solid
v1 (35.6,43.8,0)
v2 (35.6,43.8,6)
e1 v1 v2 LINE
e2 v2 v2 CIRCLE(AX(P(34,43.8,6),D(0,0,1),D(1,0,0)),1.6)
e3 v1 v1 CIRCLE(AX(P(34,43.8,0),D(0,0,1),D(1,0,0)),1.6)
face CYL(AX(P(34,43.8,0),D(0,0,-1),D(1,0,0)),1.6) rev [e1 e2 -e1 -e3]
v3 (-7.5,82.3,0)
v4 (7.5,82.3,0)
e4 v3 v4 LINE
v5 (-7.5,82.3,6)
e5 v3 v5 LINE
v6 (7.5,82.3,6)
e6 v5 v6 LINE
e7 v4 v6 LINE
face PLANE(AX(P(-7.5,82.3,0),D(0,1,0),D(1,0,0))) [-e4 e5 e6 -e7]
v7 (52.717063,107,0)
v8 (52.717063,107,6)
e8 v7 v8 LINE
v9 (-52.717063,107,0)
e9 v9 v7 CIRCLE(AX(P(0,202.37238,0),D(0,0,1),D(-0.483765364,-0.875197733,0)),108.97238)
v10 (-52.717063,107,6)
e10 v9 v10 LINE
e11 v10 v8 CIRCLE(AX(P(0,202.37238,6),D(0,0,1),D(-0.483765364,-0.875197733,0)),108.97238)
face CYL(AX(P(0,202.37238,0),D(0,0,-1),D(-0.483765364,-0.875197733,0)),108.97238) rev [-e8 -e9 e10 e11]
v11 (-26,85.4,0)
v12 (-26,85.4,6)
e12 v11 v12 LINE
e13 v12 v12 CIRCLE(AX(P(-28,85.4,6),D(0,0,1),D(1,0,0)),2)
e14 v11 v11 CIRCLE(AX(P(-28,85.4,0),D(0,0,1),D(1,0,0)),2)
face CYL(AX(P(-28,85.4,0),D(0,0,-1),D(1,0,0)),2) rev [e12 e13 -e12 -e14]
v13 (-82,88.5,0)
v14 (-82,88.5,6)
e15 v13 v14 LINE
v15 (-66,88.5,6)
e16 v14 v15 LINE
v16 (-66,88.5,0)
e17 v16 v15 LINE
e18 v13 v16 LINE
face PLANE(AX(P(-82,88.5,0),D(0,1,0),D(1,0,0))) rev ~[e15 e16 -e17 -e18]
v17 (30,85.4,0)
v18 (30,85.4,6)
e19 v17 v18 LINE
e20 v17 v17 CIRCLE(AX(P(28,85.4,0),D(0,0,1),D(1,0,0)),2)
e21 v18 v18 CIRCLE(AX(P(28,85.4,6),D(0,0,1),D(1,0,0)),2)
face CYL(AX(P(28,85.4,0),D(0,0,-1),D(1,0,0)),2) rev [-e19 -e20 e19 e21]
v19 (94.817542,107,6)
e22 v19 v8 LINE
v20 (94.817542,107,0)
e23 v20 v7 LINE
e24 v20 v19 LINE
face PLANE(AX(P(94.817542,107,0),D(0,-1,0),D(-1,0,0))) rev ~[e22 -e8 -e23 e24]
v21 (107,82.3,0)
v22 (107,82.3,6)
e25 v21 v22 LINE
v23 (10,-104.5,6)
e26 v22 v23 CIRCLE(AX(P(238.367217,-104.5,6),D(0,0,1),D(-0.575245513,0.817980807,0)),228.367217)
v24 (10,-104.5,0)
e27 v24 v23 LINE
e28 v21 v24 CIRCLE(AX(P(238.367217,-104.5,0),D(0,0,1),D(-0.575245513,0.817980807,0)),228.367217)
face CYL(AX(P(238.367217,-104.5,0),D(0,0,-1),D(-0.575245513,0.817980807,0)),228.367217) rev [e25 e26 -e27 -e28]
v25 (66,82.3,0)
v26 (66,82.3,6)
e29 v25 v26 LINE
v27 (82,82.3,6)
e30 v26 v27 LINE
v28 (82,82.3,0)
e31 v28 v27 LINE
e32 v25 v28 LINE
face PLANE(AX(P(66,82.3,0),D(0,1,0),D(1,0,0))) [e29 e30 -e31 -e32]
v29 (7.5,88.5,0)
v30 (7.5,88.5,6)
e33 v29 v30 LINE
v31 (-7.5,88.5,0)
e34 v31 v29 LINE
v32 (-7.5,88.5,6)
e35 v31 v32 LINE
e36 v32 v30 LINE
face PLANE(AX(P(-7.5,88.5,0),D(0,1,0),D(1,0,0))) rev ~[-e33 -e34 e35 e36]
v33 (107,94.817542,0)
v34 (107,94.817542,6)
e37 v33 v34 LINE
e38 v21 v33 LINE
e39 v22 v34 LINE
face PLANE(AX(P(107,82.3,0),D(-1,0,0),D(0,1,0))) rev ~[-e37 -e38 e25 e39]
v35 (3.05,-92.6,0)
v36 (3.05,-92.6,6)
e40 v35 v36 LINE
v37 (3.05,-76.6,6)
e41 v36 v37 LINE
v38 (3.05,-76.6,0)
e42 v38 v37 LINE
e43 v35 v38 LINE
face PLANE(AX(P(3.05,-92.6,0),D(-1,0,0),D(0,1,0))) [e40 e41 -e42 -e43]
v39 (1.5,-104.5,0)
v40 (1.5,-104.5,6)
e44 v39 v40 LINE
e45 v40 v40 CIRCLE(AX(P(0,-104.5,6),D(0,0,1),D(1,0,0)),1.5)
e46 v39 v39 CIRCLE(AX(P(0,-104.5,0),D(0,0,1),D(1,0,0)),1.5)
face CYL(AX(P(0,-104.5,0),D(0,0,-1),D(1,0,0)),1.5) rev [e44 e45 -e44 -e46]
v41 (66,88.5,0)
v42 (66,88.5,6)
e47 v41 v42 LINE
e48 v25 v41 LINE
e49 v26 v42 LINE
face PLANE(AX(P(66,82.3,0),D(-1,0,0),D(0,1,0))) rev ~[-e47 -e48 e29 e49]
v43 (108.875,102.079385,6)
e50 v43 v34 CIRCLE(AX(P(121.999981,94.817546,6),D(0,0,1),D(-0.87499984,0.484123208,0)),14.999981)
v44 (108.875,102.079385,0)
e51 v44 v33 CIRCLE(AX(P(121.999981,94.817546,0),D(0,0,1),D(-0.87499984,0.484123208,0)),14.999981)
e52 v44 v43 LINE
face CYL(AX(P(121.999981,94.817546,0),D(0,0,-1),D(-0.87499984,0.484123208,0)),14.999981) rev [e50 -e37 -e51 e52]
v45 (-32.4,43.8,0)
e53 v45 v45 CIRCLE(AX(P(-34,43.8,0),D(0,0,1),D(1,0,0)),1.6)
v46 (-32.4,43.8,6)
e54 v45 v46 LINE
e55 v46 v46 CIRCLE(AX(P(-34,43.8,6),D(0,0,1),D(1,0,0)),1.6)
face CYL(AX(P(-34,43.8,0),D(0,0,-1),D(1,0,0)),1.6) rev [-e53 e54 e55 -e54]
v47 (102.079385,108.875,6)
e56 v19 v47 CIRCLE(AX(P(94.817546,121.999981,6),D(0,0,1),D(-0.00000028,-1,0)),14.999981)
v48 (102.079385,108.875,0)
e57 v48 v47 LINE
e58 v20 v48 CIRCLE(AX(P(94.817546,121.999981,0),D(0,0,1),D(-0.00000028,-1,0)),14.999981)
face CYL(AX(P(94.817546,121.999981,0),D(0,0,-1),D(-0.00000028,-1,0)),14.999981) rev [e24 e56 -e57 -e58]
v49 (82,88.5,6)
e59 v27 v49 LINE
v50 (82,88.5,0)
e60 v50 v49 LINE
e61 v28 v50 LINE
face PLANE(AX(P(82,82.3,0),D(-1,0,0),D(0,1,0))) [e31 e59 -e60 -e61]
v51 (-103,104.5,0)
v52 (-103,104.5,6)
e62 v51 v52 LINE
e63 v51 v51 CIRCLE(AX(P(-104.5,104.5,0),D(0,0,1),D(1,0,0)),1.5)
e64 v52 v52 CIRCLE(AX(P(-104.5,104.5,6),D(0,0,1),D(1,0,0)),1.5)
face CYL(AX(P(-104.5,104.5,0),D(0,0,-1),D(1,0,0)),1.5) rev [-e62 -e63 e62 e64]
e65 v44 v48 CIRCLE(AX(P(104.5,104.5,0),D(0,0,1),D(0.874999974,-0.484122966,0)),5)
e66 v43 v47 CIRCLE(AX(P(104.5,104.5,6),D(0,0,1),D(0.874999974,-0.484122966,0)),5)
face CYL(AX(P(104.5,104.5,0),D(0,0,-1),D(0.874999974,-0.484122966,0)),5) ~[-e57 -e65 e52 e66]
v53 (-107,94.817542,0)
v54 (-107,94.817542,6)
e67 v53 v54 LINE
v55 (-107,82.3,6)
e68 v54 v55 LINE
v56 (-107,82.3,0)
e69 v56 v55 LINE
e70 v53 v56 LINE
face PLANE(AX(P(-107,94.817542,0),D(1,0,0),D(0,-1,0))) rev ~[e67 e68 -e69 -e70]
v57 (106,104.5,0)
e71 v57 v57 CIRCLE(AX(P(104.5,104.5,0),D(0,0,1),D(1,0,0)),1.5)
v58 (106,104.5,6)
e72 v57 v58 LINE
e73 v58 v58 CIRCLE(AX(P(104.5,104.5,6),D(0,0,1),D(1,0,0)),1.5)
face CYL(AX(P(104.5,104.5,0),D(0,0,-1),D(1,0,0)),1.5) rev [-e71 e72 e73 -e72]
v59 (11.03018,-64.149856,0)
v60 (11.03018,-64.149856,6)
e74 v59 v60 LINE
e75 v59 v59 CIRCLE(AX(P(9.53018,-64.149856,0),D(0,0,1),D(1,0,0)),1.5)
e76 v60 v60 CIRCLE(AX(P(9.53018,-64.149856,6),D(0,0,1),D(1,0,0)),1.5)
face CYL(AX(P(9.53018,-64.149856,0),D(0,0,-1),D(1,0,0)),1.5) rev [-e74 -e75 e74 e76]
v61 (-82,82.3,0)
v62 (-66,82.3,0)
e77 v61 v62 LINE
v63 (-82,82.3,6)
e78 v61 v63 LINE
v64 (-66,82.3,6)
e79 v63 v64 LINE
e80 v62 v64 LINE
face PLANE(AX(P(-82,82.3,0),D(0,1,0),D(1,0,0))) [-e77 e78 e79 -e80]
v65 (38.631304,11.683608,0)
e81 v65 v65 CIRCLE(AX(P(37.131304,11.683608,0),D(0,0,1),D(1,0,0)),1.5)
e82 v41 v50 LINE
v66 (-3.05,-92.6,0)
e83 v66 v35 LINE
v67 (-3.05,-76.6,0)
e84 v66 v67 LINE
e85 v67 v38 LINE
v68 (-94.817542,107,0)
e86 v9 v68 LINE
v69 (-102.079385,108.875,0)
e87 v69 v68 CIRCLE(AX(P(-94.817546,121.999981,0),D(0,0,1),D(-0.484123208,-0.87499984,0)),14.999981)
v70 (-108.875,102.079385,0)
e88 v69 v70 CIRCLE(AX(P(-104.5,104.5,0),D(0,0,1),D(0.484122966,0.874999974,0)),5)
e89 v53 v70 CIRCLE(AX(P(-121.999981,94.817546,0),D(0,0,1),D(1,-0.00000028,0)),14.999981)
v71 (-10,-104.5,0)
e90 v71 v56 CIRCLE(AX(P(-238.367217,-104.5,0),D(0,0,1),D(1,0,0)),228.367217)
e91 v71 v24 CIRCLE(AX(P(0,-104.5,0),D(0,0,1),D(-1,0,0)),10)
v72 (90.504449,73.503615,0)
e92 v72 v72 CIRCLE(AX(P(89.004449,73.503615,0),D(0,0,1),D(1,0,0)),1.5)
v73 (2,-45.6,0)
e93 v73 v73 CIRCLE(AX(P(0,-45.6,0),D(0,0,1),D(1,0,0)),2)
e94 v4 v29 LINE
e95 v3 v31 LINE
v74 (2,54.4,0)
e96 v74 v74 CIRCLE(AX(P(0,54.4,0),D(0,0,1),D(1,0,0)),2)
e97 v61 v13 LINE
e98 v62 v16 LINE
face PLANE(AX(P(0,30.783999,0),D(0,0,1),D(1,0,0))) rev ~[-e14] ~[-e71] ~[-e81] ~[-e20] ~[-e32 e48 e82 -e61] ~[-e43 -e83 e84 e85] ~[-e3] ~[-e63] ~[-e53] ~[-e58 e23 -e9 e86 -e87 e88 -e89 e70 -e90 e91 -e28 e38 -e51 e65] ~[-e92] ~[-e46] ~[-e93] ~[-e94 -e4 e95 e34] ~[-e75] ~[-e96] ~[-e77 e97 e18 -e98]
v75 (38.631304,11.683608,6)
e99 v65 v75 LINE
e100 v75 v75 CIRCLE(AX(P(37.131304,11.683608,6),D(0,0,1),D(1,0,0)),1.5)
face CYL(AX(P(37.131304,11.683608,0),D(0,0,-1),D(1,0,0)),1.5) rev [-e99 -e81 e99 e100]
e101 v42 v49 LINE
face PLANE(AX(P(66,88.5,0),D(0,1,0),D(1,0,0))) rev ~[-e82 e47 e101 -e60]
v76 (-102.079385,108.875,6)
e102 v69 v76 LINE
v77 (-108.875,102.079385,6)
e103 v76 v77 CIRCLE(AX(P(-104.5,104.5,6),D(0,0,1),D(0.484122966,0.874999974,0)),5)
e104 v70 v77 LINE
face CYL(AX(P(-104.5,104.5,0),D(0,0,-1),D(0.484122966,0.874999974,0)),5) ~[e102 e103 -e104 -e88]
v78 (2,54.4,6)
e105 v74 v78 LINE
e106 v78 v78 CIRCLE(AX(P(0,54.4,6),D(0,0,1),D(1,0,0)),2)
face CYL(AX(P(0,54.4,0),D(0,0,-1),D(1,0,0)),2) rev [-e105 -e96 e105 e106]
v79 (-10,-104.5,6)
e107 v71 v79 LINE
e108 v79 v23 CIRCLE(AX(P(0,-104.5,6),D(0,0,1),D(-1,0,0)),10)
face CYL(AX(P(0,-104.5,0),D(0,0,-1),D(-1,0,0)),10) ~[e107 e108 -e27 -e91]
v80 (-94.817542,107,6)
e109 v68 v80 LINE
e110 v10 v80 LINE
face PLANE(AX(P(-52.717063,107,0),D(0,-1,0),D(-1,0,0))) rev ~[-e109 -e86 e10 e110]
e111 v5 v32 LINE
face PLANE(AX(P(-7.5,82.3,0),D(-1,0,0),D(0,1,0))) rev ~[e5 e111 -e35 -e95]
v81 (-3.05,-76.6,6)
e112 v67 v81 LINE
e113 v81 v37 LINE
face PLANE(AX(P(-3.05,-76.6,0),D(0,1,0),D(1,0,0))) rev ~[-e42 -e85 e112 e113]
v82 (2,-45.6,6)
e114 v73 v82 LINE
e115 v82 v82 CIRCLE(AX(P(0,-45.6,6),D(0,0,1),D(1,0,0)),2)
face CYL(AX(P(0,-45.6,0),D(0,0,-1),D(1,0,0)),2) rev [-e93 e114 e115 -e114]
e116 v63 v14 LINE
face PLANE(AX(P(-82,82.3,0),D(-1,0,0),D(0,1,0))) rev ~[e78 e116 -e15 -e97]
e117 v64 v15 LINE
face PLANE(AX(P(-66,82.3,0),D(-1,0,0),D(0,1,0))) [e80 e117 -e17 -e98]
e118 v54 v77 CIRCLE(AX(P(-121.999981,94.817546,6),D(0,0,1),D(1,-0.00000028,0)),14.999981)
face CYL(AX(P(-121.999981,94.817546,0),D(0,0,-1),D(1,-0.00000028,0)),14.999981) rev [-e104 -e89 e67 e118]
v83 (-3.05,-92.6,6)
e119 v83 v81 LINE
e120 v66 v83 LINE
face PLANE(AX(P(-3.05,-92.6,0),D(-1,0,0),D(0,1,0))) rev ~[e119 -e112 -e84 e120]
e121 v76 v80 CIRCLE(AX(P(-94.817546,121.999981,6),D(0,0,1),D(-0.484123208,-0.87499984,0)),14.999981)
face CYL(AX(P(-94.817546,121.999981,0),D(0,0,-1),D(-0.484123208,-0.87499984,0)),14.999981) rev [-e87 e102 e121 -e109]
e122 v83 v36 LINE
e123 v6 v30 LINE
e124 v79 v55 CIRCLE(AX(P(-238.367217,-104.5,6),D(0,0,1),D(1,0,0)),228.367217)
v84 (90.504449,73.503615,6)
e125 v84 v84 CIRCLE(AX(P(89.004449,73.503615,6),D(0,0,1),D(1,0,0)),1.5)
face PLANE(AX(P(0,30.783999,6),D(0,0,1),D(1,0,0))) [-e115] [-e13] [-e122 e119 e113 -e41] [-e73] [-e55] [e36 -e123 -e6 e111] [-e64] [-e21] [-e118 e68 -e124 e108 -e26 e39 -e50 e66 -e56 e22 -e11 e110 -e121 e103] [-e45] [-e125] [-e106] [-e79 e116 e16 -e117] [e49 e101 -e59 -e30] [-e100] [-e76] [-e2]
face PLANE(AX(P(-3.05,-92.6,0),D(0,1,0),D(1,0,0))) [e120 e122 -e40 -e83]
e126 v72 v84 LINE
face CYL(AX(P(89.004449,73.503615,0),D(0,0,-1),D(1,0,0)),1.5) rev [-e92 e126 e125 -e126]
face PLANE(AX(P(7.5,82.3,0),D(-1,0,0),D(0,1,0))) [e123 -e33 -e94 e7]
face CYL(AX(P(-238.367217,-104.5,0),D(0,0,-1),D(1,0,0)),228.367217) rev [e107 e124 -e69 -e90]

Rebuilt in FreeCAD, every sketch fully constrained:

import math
import FreeCAD as App
import Part
import Sketcher

V = App.Vector


def add_polygon(sketch, points):
    """Adds a closed chain of lines whose ends are joined by coincident constraints."""
    first, n = sketch.GeometryCount, len(points)
    for a, b in zip(points, points[1:] + points[:1]):
        sketch.addGeometry(Part.LineSegment(App.Vector(*a, 0), App.Vector(*b, 0)), False)
    for i in range(n):
        sketch.addConstraint(Sketcher.Constraint("Coincident", first + i, 2, first + (i + 1) % n, 1))

doc = App.newDocument("Part")
params = doc.addObject("Spreadsheet::Sheet", "Params")
for row, (alias, value) in enumerate([
    ("sketch1_diameter", "3 mm"),
    ("sketch1_diameter2", "4 mm"),
    ("sketch1_radius", "10 mm"),
    ("sketch1_radius2", "5 mm"),
    ("sketch1_diameter3", "3.2 mm"),
    ("pad1_length", "6 mm"),
], start=1):
    params.set(f"A{row}", alias)
    params.set(f"B{row}", "=" + value)
    params.setAlias(f"B{row}", alias)

body = doc.addObject("PartDesign::Body", "Body")

# Sketch on XY plane
sketch1 = doc.addObject("Sketcher::SketchObject", "Sketch")
body.addObject(sketch1)
sketch1.AttachmentSupport = (doc.XY_Plane, [""])
sketch1.MapMode = "FlatFace"
sketch1.addGeometry(Part.ArcOfCircle(Part.Circle(V(0, -104.5, 0), V(0, 0, 1), 10), math.radians(180), math.radians(360)), False)  # 0
sketch1.addGeometry(Part.ArcOfCircle(Part.Circle(V(238.4, -104.5, 0), V(0, 0, 1), 228.4), math.radians(125), math.radians(180)), False)  # 1
sketch1.addGeometry(Part.LineSegment(V(107, 82.3, 0), V(107, 94.8, 0)), False)  # 2
sketch1.addGeometry(Part.ArcOfCircle(Part.Circle(V(122, 94.8, 0), V(0, 0, 1), 15), math.radians(151), math.radians(180)), False)  # 3
sketch1.addGeometry(Part.ArcOfCircle(Part.Circle(V(104.5, 104.5, 0), V(0, 0, 1), 5), math.radians(-29), math.radians(119)), False)  # 4
sketch1.addGeometry(Part.ArcOfCircle(Part.Circle(V(94.8, 122, 0), V(0, 0, 1), 15), math.radians(-90), math.radians(-61)), False)  # 5
sketch1.addGeometry(Part.LineSegment(V(94.8, 107, 0), V(52.7, 107, 0)), False)  # 6
sketch1.addGeometry(Part.ArcOfCircle(Part.Circle(V(0, 202.4, 0), V(0, 0, 1), 109), math.radians(-119), math.radians(-61)), False)  # 7
sketch1.addGeometry(Part.LineSegment(V(-52.7, 107, 0), V(-94.8, 107, 0)), False)  # 8
sketch1.addGeometry(Part.ArcOfCircle(Part.Circle(V(-94.8, 122, 0), V(0, 0, 1), 15), math.radians(-119), math.radians(-90)), False)  # 9
sketch1.addGeometry(Part.ArcOfCircle(Part.Circle(V(-104.5, 104.5, 0), V(0, 0, 1), 5), math.radians(61), math.radians(209)), False)  # 10
sketch1.addGeometry(Part.ArcOfCircle(Part.Circle(V(-122, 94.8, 0), V(0, 0, 1), 15), math.radians(0), math.radians(29)), False)  # 11
sketch1.addGeometry(Part.LineSegment(V(-107, 94.8, 0), V(-107, 82.3, 0)), False)  # 12
sketch1.addGeometry(Part.ArcOfCircle(Part.Circle(V(-238.4, -104.5, 0), V(0, 0, 1), 228.4), math.radians(0), math.radians(55)), False)  # 13
sketch1.addGeometry(Part.Circle(V(0, -104.5, 0), V(0, 0, 1), 1.5), False)  # 14
add_polygon(sketch1, [(3, -92.6), (-3, -92.6), (-3, -76.6), (3, -76.6)])  # lines 15-18
sketch1.addGeometry(Part.Circle(V(9.5, -64.1, 0), V(0, 0, 1), 1.5), False)  # 19
sketch1.addGeometry(Part.Circle(V(0, -45.6, 0), V(0, 0, 1), 2), False)  # 20
sketch1.addGeometry(Part.Circle(V(-34, 43.8, 0), V(0, 0, 1), 1.6), False)  # 21
sketch1.addGeometry(Part.Circle(V(-104.5, 104.5, 0), V(0, 0, 1), 1.5), False)  # 22
add_polygon(sketch1, [(-66, 82.3), (-82, 82.3), (-82, 88.5), (-66, 88.5)])  # lines 23-26
sketch1.addGeometry(Part.Circle(V(-28, 85.4, 0), V(0, 0, 1), 2), False)  # 27
sketch1.addGeometry(Part.Circle(V(37.1, 11.7, 0), V(0, 0, 1), 1.5), False)  # 28
sketch1.addGeometry(Part.Circle(V(34, 43.8, 0), V(0, 0, 1), 1.6), False)  # 29
sketch1.addGeometry(Part.Circle(V(0, 54.4, 0), V(0, 0, 1), 2), False)  # 30
add_polygon(sketch1, [(7.5, 82.3), (-7.5, 82.3), (-7.5, 88.5), (7.5, 88.5)])  # lines 31-34
sketch1.addGeometry(Part.Circle(V(28, 85.4, 0), V(0, 0, 1), 2), False)  # 35
sketch1.addGeometry(Part.Circle(V(89, 73.5, 0), V(0, 0, 1), 1.5), False)  # 36
add_polygon(sketch1, [(82, 82.3), (66, 82.3), (66, 88.5), (82, 88.5)])  # lines 37-40
sketch1.addGeometry(Part.Circle(V(104.5, 104.5, 0), V(0, 0, 1), 1.5), False)  # 41
sketch1.addConstraint([
    Sketcher.Constraint("Tangent", 0, 2, 1, 2),
    Sketcher.Constraint("Coincident", 1, 1, 2, 1),
    Sketcher.Constraint("Tangent", 2, 2, 3, 2),
    Sketcher.Constraint("Tangent", 3, 1, 4, 1),
    Sketcher.Constraint("Tangent", 4, 2, 5, 2),
    Sketcher.Constraint("Tangent", 5, 1, 6, 1),
    Sketcher.Constraint("Coincident", 6, 2, 7, 2),
    Sketcher.Constraint("Coincident", 7, 1, 8, 1),
    Sketcher.Constraint("Tangent", 8, 2, 9, 2),
    Sketcher.Constraint("Tangent", 9, 1, 10, 1),
    Sketcher.Constraint("Tangent", 10, 2, 11, 2),
    Sketcher.Constraint("Tangent", 11, 1, 12, 1),
    Sketcher.Constraint("Coincident", 12, 2, 13, 2),
    Sketcher.Constraint("Tangent", 13, 1, 0, 1),
    Sketcher.Constraint("Vertical", 2),
    Sketcher.Constraint("Horizontal", 6),
    Sketcher.Constraint("Horizontal", 8),
    Sketcher.Constraint("Vertical", 12),
    Sketcher.Constraint("Horizontal", 15),
    Sketcher.Constraint("Vertical", 16),
    Sketcher.Constraint("Horizontal", 17),
    Sketcher.Constraint("Vertical", 18),
    Sketcher.Constraint("Horizontal", 23),
    Sketcher.Constraint("Vertical", 24),
    Sketcher.Constraint("Horizontal", 25),
    Sketcher.Constraint("Vertical", 26),
    Sketcher.Constraint("Horizontal", 31),
    Sketcher.Constraint("Vertical", 32),
    Sketcher.Constraint("Horizontal", 33),
    Sketcher.Constraint("Vertical", 34),
    Sketcher.Constraint("Horizontal", 37),
    Sketcher.Constraint("Vertical", 38),
    Sketcher.Constraint("Horizontal", 39),
    Sketcher.Constraint("Vertical", 40),
    Sketcher.Constraint("Coincident", 14, 3, 0, 3),
    Sketcher.Constraint("Coincident", 22, 3, 10, 3),
    Sketcher.Constraint("Coincident", 41, 3, 4, 3),
    Sketcher.Constraint("Equal", 3, 5),
    Sketcher.Constraint("Equal", 5, 9),
    Sketcher.Constraint("Equal", 4, 10),
    Sketcher.Constraint("Equal", 9, 11),
    Sketcher.Constraint("Equal", 1, 13),
    Sketcher.Constraint("Equal", 14, 19),
    Sketcher.Constraint("Equal", 19, 22),
    Sketcher.Constraint("Equal", 20, 27),
    Sketcher.Constraint("Equal", 22, 28),
    Sketcher.Constraint("Equal", 21, 29),
    Sketcher.Constraint("Equal", 27, 30),
    Sketcher.Constraint("Equal", 30, 35),
    Sketcher.Constraint("Equal", 28, 36),
    Sketcher.Constraint("Equal", 36, 41),
    Sketcher.Constraint("Symmetric", 5, 3, 9, 3, -2),
    Sketcher.Constraint("Symmetric", 3, 3, 11, 3, -2),
    Sketcher.Constraint("Symmetric", 1, 3, 13, 3, -2),
    Sketcher.Constraint("Symmetric", 21, 3, 29, 3, -2),
    Sketcher.Constraint("Symmetric", 27, 3, 35, 3, -2),
    Sketcher.Constraint("Symmetric", 26, 2, 37, 2, -2),
    Sketcher.Constraint("Symmetric", 24, 2, 39, 2, -2),
    Sketcher.Constraint("PointOnObject", 7, 3, -2),
    Sketcher.Constraint("PointOnObject", 20, 3, -2),
    Sketcher.Constraint("PointOnObject", 30, 3, -2),
    Sketcher.Constraint("Horizontal", 0, 3, 1, 3),
    Sketcher.Constraint("Horizontal", 12, 2, 23, 2),
    Sketcher.Constraint("Horizontal", 26, 2, 31, 2),
    Sketcher.Constraint("Horizontal", 25, 2, 32, 2),
    Sketcher.Constraint("Equal", 39, 16),
    Sketcher.Constraint("Diameter", 14, 3.0),
    Sketcher.Constraint("Diameter", 20, 4.0),
    Sketcher.Constraint("Radius", 0, 10.0),
    Sketcher.Constraint("Radius", 4, 5.0),
    Sketcher.Constraint("Diameter", 21, 3.2),
    Sketcher.Constraint("DistanceX", 23, 2, 23, 1, 16.0),
    Sketcher.Constraint("DistanceX", 31, 2, 31, 1, 15.0),
    Sketcher.Constraint("DistanceX", 15, 2, 15, 1, 6.1),
    Sketcher.Constraint("DistanceY", 24, 1, 24, 2, 6.2),
    Sketcher.Constraint("DistanceX", 21, 3, -1, 1, 34.0),
    Sketcher.Constraint("DistanceX", 27, 3, -1, 1, 28.0),
    Sketcher.Constraint("DistanceX", -1, 1, 2, 2, 107.0),
    Sketcher.Constraint("DistanceY", -1, 1, 5, 1, 107.0),
    Sketcher.Constraint("DistanceX", 23, 2, -1, 1, 82.0),
    Sketcher.Constraint("DistanceY", 0, 3, 4, 3, 209.0),
    Sketcher.Constraint("DistanceX", 10, 3, 4, 3, 209.0),
    Sketcher.Constraint("DistanceY", 30, 3, 27, 3, 31.0),
    Sketcher.Constraint("DistanceY", 20, 3, 30, 3, 100.0),
    Sketcher.Constraint("DistanceY", 24, 2, 10, 3, 16.0),
    Sketcher.Constraint("DistanceY", 0, 3, -1, 1, 104.5),
    Sketcher.Constraint("DistanceY", 20, 3, -1, 1, 45.6),
    Sketcher.Constraint("DistanceY", -1, 1, 21, 3, 43.8),
    Sketcher.Constraint("DistanceY", 15, 2, -1, 1, 92.6),
    Sketcher.Constraint("DistanceX", 31, 2, -1, 1, 7.5),
    Sketcher.Constraint("DistanceX", 15, 2, -1, 1, 3.05),
    Sketcher.Constraint("Radius", 3, 14.999981),
    Sketcher.Constraint("Radius", 7, 108.97238),
    Sketcher.Constraint("DistanceX", 6, 2, 6, 1, 42.100479),
    Sketcher.Constraint("DistanceX", 19, 3, 3, 3, 112.469801),
    Sketcher.Constraint("DistanceX", -1, 1, 36, 3, 89.004449),
    Sketcher.Constraint("DistanceY", 28, 3, 21, 3, 32.116392),
    Sketcher.Constraint("DistanceY", 36, 3, 3, 3, 21.313931),
    Sketcher.Constraint("DistanceY", 19, 3, -1, 1, 64.149856),
    Sketcher.Constraint("DistanceX", -1, 1, 28, 3, 37.131304),
])
sketch1.setExpression("Constraints[82]", "Params.sketch1_diameter")
sketch1.setExpression("Constraints[83]", "Params.sketch1_diameter2")
sketch1.setExpression("Constraints[84]", "Params.sketch1_radius")
sketch1.setExpression("Constraints[85]", "Params.sketch1_radius2")
sketch1.setExpression("Constraints[86]", "Params.sketch1_diameter3")
pad1 = doc.addObject("PartDesign::Pad", "Pad")
body.addObject(pad1)
pad1.Profile = sketch1
pad1.setExpression("Length", "Params.pad1_length")

doc.recompute()
